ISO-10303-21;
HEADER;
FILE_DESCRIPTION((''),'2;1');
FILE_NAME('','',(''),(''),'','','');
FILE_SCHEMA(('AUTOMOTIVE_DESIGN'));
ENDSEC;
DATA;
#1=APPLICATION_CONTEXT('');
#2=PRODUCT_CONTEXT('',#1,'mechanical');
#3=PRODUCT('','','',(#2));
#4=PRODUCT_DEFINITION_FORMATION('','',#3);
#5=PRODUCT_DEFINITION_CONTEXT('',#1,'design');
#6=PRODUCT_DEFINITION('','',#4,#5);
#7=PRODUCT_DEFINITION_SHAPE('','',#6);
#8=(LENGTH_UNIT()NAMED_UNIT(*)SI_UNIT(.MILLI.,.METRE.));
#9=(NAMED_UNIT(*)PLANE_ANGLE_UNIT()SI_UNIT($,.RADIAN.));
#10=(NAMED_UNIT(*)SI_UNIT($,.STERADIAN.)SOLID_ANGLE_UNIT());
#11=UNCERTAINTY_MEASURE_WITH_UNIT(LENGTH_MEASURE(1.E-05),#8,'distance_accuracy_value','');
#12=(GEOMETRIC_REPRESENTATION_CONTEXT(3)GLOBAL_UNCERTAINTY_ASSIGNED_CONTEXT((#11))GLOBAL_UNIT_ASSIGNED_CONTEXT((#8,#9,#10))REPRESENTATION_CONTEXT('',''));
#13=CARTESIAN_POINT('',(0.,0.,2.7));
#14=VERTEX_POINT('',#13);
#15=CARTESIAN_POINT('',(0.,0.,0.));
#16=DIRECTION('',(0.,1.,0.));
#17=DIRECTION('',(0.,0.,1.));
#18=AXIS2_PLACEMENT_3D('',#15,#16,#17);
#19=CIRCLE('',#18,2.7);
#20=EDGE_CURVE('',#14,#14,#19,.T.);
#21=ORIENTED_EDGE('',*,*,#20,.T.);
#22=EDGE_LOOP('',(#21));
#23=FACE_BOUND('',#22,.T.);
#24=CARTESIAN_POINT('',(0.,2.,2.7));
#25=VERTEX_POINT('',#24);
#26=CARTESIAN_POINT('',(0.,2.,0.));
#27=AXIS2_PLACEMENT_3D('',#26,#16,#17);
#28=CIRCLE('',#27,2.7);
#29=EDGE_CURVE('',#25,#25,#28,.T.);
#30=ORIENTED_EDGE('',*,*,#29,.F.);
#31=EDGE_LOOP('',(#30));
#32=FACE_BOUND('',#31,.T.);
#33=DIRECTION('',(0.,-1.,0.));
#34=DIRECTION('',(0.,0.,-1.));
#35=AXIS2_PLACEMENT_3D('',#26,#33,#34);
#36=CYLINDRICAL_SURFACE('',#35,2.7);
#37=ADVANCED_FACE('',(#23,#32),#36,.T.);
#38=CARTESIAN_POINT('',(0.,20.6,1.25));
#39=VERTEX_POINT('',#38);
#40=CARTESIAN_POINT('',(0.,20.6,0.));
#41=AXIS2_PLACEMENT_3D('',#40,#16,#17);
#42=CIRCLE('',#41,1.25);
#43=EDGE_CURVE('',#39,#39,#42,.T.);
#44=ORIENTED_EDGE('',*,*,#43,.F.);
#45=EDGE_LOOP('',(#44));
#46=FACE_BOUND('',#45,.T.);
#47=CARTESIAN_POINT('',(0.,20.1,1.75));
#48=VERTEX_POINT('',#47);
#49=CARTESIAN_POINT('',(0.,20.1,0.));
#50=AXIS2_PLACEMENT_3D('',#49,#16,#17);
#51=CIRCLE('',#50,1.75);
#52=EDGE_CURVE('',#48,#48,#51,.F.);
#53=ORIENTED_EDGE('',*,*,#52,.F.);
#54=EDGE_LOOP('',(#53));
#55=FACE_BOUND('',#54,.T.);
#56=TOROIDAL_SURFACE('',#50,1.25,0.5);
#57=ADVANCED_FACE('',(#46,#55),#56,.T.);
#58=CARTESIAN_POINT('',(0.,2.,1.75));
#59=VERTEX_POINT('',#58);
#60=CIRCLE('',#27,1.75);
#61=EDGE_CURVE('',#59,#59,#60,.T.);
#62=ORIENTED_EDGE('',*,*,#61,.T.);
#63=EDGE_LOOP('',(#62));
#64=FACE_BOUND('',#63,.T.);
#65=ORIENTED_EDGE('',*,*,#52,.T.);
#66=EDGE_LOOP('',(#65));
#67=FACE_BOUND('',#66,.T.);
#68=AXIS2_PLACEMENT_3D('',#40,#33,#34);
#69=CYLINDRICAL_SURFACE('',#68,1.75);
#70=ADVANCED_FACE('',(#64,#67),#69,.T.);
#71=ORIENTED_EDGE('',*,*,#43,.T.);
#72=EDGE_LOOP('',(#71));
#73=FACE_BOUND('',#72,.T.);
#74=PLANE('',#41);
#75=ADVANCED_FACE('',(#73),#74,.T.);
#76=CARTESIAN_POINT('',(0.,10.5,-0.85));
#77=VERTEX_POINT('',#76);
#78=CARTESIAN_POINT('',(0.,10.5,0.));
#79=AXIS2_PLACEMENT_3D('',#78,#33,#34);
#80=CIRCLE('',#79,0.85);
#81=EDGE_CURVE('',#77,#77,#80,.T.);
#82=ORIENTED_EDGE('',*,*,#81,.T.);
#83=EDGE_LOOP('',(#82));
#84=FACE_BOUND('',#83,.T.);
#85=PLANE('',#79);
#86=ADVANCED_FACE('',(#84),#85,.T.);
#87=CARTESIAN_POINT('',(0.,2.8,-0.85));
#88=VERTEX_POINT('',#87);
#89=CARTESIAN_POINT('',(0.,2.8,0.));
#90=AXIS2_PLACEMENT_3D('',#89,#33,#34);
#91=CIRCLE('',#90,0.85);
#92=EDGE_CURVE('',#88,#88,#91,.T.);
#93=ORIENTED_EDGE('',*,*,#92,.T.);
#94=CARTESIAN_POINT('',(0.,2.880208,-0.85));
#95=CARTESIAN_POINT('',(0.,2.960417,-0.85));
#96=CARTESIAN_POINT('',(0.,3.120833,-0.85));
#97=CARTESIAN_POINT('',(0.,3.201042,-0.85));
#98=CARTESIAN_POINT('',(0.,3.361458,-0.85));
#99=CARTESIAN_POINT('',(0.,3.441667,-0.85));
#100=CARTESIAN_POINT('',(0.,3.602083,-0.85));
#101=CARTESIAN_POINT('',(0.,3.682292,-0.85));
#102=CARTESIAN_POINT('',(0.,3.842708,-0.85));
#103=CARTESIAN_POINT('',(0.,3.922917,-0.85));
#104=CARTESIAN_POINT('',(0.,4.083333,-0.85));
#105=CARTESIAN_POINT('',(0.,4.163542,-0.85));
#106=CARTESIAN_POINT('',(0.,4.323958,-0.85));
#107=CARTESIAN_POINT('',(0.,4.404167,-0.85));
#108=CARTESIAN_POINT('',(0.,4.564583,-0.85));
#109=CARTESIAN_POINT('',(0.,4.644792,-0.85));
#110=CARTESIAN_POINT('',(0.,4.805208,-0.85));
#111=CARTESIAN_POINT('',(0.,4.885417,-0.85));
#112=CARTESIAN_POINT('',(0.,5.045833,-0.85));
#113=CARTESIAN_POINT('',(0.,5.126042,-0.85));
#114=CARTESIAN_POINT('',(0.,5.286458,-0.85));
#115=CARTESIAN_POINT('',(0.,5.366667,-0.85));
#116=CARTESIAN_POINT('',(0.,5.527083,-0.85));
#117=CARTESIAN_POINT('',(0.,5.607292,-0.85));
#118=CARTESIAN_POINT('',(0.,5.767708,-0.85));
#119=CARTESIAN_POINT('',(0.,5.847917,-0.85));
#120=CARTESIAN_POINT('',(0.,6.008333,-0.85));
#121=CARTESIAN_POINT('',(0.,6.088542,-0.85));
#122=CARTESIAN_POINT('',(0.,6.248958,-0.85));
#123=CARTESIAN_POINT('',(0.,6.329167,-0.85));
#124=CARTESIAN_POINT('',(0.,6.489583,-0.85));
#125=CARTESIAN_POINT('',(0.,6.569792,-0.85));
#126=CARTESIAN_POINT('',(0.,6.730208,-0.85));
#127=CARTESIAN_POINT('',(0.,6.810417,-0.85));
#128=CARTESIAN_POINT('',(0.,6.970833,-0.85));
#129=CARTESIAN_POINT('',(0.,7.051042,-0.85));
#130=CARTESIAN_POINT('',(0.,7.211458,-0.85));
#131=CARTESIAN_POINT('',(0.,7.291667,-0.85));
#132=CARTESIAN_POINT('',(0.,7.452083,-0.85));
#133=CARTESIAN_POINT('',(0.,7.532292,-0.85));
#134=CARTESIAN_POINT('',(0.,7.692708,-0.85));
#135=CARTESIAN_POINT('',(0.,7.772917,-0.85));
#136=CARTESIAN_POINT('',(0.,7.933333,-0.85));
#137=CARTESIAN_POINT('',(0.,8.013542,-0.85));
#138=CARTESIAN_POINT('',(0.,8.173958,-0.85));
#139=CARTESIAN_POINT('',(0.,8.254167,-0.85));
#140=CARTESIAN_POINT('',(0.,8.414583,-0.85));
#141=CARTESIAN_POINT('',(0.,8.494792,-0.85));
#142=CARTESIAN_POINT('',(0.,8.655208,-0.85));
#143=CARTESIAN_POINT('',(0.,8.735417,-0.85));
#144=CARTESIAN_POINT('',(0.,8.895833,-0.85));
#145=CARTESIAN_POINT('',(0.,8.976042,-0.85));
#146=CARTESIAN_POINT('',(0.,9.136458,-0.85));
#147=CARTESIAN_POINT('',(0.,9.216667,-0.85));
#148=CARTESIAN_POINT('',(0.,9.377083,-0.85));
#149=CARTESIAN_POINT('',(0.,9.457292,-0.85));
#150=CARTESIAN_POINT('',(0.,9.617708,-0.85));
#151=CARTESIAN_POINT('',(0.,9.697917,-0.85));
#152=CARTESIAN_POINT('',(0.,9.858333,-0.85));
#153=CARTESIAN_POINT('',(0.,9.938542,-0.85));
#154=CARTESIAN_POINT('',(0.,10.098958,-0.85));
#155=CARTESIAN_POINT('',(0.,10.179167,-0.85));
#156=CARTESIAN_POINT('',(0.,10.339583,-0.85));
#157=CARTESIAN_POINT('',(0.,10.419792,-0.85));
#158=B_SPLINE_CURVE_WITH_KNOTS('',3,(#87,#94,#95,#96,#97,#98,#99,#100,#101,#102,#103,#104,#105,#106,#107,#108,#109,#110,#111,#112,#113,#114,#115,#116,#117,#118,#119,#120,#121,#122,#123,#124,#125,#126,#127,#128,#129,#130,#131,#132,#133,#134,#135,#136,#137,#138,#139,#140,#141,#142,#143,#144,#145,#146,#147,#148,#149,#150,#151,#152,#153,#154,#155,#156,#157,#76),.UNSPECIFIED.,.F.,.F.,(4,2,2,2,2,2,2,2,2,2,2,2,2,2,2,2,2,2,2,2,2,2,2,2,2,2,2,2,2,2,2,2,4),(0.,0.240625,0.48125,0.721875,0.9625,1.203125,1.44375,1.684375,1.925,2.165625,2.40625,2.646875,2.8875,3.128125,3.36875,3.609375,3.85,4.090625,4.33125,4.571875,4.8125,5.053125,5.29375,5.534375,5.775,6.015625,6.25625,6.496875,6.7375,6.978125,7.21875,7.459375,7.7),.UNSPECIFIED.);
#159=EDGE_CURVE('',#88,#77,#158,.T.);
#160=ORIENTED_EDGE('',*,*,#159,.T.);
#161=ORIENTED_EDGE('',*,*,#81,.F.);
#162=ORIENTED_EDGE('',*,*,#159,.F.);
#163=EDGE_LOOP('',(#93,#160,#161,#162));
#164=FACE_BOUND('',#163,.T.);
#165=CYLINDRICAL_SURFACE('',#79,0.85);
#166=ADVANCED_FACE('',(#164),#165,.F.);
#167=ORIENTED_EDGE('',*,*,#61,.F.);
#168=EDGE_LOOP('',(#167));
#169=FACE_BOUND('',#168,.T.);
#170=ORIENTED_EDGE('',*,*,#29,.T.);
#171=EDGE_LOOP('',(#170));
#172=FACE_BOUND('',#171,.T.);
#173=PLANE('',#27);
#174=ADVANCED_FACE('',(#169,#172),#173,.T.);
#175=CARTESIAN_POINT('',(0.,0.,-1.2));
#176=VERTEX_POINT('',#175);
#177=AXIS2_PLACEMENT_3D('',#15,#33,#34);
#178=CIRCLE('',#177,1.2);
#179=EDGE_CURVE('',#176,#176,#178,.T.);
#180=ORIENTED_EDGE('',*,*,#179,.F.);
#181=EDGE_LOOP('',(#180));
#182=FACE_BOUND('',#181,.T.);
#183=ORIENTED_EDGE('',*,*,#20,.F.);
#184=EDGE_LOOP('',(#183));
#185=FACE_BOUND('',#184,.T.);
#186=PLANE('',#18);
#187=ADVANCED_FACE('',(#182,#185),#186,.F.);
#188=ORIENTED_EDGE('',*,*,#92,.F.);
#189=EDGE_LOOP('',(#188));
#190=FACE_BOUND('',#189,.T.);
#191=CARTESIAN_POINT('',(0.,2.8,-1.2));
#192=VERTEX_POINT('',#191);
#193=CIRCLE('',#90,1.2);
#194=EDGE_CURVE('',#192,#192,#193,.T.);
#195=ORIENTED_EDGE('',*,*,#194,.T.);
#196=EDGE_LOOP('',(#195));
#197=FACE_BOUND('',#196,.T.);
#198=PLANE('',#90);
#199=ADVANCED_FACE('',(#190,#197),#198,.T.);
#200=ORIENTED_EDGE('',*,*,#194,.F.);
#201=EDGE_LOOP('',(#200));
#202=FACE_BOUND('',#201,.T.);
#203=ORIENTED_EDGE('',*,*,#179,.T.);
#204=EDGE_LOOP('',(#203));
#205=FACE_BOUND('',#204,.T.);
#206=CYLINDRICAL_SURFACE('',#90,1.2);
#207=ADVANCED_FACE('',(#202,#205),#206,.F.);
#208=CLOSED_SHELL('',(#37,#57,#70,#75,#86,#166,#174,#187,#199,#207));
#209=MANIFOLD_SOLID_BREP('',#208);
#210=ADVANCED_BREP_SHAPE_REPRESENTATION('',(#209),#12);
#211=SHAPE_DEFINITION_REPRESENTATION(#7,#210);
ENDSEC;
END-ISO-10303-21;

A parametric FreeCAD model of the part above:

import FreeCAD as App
import Part
import Sketcher
from FreeCAD import Vector


def edges_at(feature, points):
    """Names of the edges that pass closest to the given points."""
    edges = feature.Shape.Edges
    near = lambda p: min(range(len(edges)), key=lambda i: edges[i].distToShape(Part.Vertex(*p))[0])
    return sorted({f"Edge{near(p) + 1}" for p in points})

doc = App.newDocument("Part")
body = doc.addObject("PartDesign::Body", "Body")

# Sketch on XZ plane
sketch1 = body.newObject("Sketcher::SketchObject", "Sketch")
sketch1.AttachmentSupport = (doc.getObject("XZ_Plane"), [""])
sketch1.MapMode = "FlatFace"
sketch1.addGeometry(Part.Circle(Vector(0, 0, 0), Vector(0, 0, 1), 2.7), False)
sketch1.addConstraint([
    Sketcher.Constraint("Coincident", 0, 3, -1, 1),
    Sketcher.Constraint("Diameter", 0, 5.4),
])
pad1 = body.newObject("PartDesign::Pad", "Pad")
pad1.Profile = sketch1
pad1.Length = 2
pad1.Reversed = True

# Sketch on XZ plane
sketch2 = body.newObject("Sketcher::SketchObject", "Sketch001")
sketch2.AttachmentSupport = (doc.getObject("XZ_Plane"), [""])
sketch2.MapMode = "FlatFace"
sketch2.addGeometry(Part.Circle(Vector(0, 0, 0), Vector(0, 0, 1), 0.95), False)
sketch2.addConstraint([
    Sketcher.Constraint("Coincident", 0, 3, -1, 1),
    Sketcher.Constraint("Diameter", 0, 1.9),
])
pocket1 = body.newObject("PartDesign::Pocket", "Pocket")
pocket1.Profile = sketch2
pocket1.Length = 9.5

# Sketch on XZ plane
sketch3 = body.newObject("Sketcher::SketchObject", "Sketch002")
sketch3.AttachmentSupport = (doc.getObject("XZ_Plane"), [""])
sketch3.MapMode = "FlatFace"
sketch3.AttachmentOffset = App.Placement(Vector(0, 0, -2), App.Rotation())
sketch3.addGeometry(Part.Circle(Vector(0, 0, 0), Vector(0, 0, 1), 1.75), False)
sketch3.addConstraint([
    Sketcher.Constraint("Coincident", 0, 3, -1, 1),
    Sketcher.Constraint("Diameter", 0, 3.5),
])
pad2 = body.newObject("PartDesign::Pad", "Pad001")
pad2.Profile = sketch3
pad2.Length = 18.6
pad2.Reversed = True

# Sketch on XZ plane
sketch4 = body.newObject("Sketcher::SketchObject", "Sketch003")
sketch4.AttachmentSupport = (doc.getObject("XZ_Plane"), [""])
sketch4.MapMode = "FlatFace"
sketch4.addGeometry(Part.Circle(Vector(0, 0, 0), Vector(0, 0, 1), 1.2), False)
sketch4.addConstraint([
    Sketcher.Constraint("Coincident", 0, 3, -1, 1),
    Sketcher.Constraint("Diameter", 0, 2.4),
])
pocket2 = body.newObject("PartDesign::Pocket", "Pocket001")
pocket2.Profile = sketch4
pocket2.Length = 2.8
doc.recompute()

fillet = body.newObject("PartDesign::Fillet", "Fillet")
fillet.Base = (pocket2, edges_at(pocket2, [(0, 20.6, -1.75)]))
fillet.Radius = 0.5

# Sketch on XZ plane
sketch5 = body.newObject("Sketcher::SketchObject", "Sketch004")
sketch5.AttachmentSupport = (doc.getObject("XZ_Plane"), [""])
sketch5.MapMode = "FlatFace"
sketch5.addGeometry(Part.Circle(Vector(0, 0, 0), Vector(0, 0, 1), 0.85), False)
sketch5.addConstraint([
    Sketcher.Constraint("Coincident", 0, 3, -1, 1),
    Sketcher.Constraint("Diameter", 0, 1.7),
])
pocket3 = body.newObject("PartDesign::Pocket", "Pocket002")
pocket3.Profile = sketch5
pocket3.Length = 10.5

doc.recompute()
